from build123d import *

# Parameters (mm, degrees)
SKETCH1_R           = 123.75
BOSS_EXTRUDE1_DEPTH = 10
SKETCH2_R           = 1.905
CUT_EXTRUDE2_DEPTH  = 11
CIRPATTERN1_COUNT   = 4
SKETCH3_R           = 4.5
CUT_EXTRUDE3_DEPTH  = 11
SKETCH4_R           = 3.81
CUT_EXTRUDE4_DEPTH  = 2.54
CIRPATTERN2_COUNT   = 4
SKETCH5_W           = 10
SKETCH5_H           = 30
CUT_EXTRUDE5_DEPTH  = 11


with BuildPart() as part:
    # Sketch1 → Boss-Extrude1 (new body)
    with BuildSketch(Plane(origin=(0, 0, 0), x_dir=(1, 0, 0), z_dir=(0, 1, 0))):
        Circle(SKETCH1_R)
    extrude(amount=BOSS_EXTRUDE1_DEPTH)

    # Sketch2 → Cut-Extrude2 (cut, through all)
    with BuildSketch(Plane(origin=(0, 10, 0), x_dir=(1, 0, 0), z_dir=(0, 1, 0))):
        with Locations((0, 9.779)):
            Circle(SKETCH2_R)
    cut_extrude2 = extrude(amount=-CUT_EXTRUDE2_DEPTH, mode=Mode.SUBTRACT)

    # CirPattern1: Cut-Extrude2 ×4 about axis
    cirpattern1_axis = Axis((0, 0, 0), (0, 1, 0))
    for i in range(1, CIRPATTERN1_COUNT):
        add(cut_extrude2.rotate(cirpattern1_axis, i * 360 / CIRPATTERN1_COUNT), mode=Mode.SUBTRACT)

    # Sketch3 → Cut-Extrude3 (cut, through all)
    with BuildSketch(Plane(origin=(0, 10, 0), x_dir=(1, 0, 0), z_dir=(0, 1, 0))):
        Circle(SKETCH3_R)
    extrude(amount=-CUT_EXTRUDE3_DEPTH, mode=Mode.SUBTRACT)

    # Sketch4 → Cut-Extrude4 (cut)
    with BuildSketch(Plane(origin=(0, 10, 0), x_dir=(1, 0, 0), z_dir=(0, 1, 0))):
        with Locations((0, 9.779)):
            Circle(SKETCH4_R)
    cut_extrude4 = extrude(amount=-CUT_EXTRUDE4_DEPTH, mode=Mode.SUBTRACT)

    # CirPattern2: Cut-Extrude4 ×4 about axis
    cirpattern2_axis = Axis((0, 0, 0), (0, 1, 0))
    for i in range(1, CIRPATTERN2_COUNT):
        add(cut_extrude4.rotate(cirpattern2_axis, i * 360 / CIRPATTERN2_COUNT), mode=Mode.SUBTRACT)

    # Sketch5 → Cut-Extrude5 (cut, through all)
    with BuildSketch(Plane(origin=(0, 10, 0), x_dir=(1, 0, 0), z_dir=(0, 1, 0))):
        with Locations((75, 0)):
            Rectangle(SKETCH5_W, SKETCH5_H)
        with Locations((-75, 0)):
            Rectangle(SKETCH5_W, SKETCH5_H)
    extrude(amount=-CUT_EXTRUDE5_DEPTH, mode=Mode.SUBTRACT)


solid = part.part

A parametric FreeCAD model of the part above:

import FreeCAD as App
import Part
import Sketcher
from FreeCAD import Vector


def add_polygon(sketch, points):
    """Adds a closed chain of lines whose ends are joined by coincident constraints."""
    first, n = sketch.GeometryCount, len(points)
    for a, b in zip(points, points[1:] + points[:1]):
        sketch.addGeometry(Part.LineSegment(App.Vector(*a, 0), App.Vector(*b, 0)), False)
    for i in range(n):
        sketch.addConstraint(Sketcher.Constraint("Coincident", first + i, 2, first + (i + 1) % n, 1))

doc = App.newDocument("Part")
body = doc.addObject("PartDesign::Body", "Body")

sketch1 = body.newObject("Sketcher::SketchObject", "Sketch")
sketch1.AttachmentSupport = (doc.getObject("XZ_Plane"), [""])
sketch1.MapMode = "FlatFace"
sketch1.addGeometry(Part.Circle(Vector(0, 0, 0), Vector(0, 0, 1), 124), False)
sketch1.addConstraint(Sketcher.Constraint("Coincident", 0, 3, -1, 1))
sketch1.addConstraint(Sketcher.Constraint("Diameter", 0, 247.5))
pad1 = body.newObject("PartDesign::Pad", "Pad")
pad1.Profile = sketch1
pad1.Length = 10
pad1.Reversed = True

sketch2 = body.newObject("Sketcher::SketchObject", "Sketch001")
sketch2.AttachmentSupport = (doc.getObject("XZ_Plane"), [""])
sketch2.MapMode = "FlatFace"
sketch2.AttachmentOffset = App.Placement(Vector(0, 0, -10), App.Rotation())
sketch2.addGeometry(Part.Circle(Vector(0, -9.8, 0), Vector(0, 0, 1), 1.9), False)
sketch2.addConstraint(Sketcher.Constraint("PointOnObject", 0, 3, -2))
sketch2.addConstraint(Sketcher.Constraint("Diameter", 0, 3.81))
sketch2.addConstraint(Sketcher.Constraint("DistanceY", 0, 3, -1, 1, 9.779))
pocket1 = body.newObject("PartDesign::Pocket", "Pocket")
pocket1.Profile = sketch2
pocket1.Type = "ThroughAll"
pocket1.Reversed = True
doc.recompute()

polarpattern = body.newObject("PartDesign::PolarPattern", "PolarPattern")
polarpattern.Originals = [pocket1]
polarpattern.Axis = (doc.getObject("Y_Axis"), [""])
polarpattern.Angle = 360
polarpattern.Occurrences = 4
body.Tip = polarpattern

sketch3 = body.newObject("Sketcher::SketchObject", "Sketch002")
sketch3.AttachmentSupport = (doc.getObject("XZ_Plane"), [""])
sketch3.MapMode = "FlatFace"
sketch3.AttachmentOffset = App.Placement(Vector(0, 0, -10), App.Rotation())
sketch3.addGeometry(Part.Circle(Vector(0, 0, 0), Vector(0, 0, 1), 4.5), False)
sketch3.addConstraint(Sketcher.Constraint("Coincident", 0, 3, -1, 1))
sketch3.addConstraint(Sketcher.Constraint("Diameter", 0, 9.0))
pocket2 = body.newObject("PartDesign::Pocket", "Pocket001")
pocket2.Profile = sketch3
pocket2.Type = "ThroughAll"
pocket2.Reversed = True

sketch4 = body.newObject("Sketcher::SketchObject", "Sketch003")
sketch4.AttachmentSupport = (doc.getObject("XZ_Plane"), [""])
sketch4.MapMode = "FlatFace"
sketch4.AttachmentOffset = App.Placement(Vector(0, 0, -10), App.Rotation())
sketch4.addGeometry(Part.Circle(Vector(0, -9.8, 0), Vector(0, 0, 1), 3.8), False)
sketch4.addConstraint(Sketcher.Constraint("PointOnObject", 0, 3, -2))
sketch4.addConstraint(Sketcher.Constraint("Diameter", 0, 7.62))
sketch4.addConstraint(Sketcher.Constraint("DistanceY", 0, 3, -1, 1, 9.779))
pocket3 = body.newObject("PartDesign::Pocket", "Pocket002")
pocket3.Profile = sketch4
pocket3.Length = 2.54
pocket3.Reversed = True
doc.recompute()

polarpattern2 = body.newObject("PartDesign::PolarPattern", "PolarPattern001")
polarpattern2.Originals = [pocket3]
polarpattern2.Axis = (doc.getObject("Y_Axis"), [""])
polarpattern2.Angle = 360
polarpattern2.Occurrences = 4
body.Tip = polarpattern2

sketch5 = body.newObject("Sketcher::SketchObject", "Sketch004")
sketch5.AttachmentSupport = (doc.getObject("XZ_Plane"), [""])
sketch5.MapMode = "FlatFace"
sketch5.AttachmentOffset = App.Placement(Vector(0, 0, -10), App.Rotation())
add_polygon(sketch5, [(70, -15), (70, 15), (80, 15), (80, -15)])
add_polygon(sketch5, [(-80, -15), (-80, 15), (-70, 15), (-70, -15)])
sketch5.addConstraint(Sketcher.Constraint("Vertical", 0))
sketch5.addConstraint(Sketcher.Constraint("Horizontal", 1))
sketch5.addConstraint(Sketcher.Constraint("Vertical", 2))
sketch5.addConstraint(Sketcher.Constraint("Horizontal", 3))
sketch5.addConstraint(Sketcher.Constraint("Vertical", 4))
sketch5.addConstraint(Sketcher.Constraint("Horizontal", 5))
sketch5.addConstraint(Sketcher.Constraint("Vertical", 6))
sketch5.addConstraint(Sketcher.Constraint("Horizontal", 7))
sketch5.addConstraint(Sketcher.Constraint("Symmetric", 2, 2, 4, 2, -1, 1))
sketch5.addConstraint(Sketcher.Constraint("Symmetric", 0, 2, 6, 2, -1, 1))
sketch5.addConstraint(Sketcher.Constraint("Horizontal", 1, 2, 4, 2))
sketch5.addConstraint(Sketcher.Constraint("DistanceX", 1, 1, 1, 2, 10.0))
sketch5.addConstraint(Sketcher.Constraint("DistanceY", 0, 1, 0, 2, 30.0))
sketch5.addConstraint(Sketcher.Constraint("DistanceX", -1, 1, 0, 2, 70.0))
pocket4 = body.newObject("PartDesign::Pocket", "Pocket003")
pocket4.Profile = sketch5
pocket4.Type = "ThroughAll"
pocket4.Reversed = True

doc.recompute()
